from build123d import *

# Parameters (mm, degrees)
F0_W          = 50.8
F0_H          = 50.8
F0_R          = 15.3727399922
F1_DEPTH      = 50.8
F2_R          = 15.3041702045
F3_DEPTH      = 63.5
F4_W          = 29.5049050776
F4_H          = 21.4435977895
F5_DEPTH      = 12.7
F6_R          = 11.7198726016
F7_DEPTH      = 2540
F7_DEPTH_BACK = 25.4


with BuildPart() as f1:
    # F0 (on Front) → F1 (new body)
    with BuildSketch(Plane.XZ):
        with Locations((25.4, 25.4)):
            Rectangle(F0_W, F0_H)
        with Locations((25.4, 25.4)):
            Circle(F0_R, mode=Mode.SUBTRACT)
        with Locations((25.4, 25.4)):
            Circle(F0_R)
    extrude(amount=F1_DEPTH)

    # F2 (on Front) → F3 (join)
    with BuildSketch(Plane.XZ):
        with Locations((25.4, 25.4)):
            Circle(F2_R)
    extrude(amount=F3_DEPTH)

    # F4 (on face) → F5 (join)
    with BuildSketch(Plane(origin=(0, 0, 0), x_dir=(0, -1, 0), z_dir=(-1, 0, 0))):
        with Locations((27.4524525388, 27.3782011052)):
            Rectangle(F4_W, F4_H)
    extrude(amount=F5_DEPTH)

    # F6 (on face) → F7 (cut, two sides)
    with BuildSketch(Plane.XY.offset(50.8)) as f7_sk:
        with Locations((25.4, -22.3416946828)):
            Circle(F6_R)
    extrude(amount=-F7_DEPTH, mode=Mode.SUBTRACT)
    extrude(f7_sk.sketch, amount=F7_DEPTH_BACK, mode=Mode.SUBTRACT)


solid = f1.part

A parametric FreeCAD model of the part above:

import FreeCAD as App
import Part
import Sketcher
Q = App.Units.Quantity

doc = App.newDocument("Part")
body = doc.addObject("PartDesign::Body", "Body")

# Sketch on XZ plane
sketch1 = body.newObject("Sketcher::SketchObject", "Sketch")
sketch1.AttachmentSupport = (doc.getObject("XZ_Plane"), [""])
sketch1.MapMode = "FlatFace"
sketch1.addGeometry(Part.LineSegment(App.Vector(0, 51, 0), App.Vector(0, 0, 0)), False)
sketch1.addGeometry(Part.LineSegment(App.Vector(0, 0, 0), App.Vector(51, 0, 0)), False)
sketch1.addGeometry(Part.LineSegment(App.Vector(51, 0, 0), App.Vector(51, 51, 0)), False)
sketch1.addGeometry(Part.LineSegment(App.Vector(51, 51, 0), App.Vector(0, 51, 0)), False)
sketch1.addConstraint(Sketcher.Constraint("Coincident", 0, 2, 1, 1))
sketch1.addConstraint(Sketcher.Constraint("Coincident", 1, 2, 2, 1))
sketch1.addConstraint(Sketcher.Constraint("Coincident", 2, 2, 3, 1))
sketch1.addConstraint(Sketcher.Constraint("Coincident", 3, 2, 0, 1))
sketch1.addConstraint(Sketcher.Constraint("Vertical", 0))
sketch1.addConstraint(Sketcher.Constraint("Horizontal", 1))
sketch1.addConstraint(Sketcher.Constraint("Vertical", 2))
sketch1.addConstraint(Sketcher.Constraint("Horizontal", 3))
sketch1.addConstraint(Sketcher.Constraint("Coincident", 0, 2, -1, 1))
sketch1.addConstraint(Sketcher.Constraint("Equal", 3, 0))
sketch1.addConstraint(Sketcher.Constraint("DistanceX", 1, 1, 1, 2, Q("2 in")))
pad1 = body.newObject("PartDesign::Pad", "Pad")
pad1.Profile = sketch1
pad1.Length = Q("2 in")

# Sketch on XZ plane
sketch2 = body.newObject("Sketcher::SketchObject", "Sketch001")
sketch2.AttachmentSupport = (doc.getObject("XZ_Plane"), [""])
sketch2.MapMode = "FlatFace"
sketch2.addGeometry(Part.Circle(App.Vector(25, 25, 0), App.Vector(0, 0, 1), 15), False)
sketch2.addConstraint(Sketcher.Constraint("DistanceX", -1, 1, 0, 3, Q("1 in")))
sketch2.addConstraint(Sketcher.Constraint("DistanceY", -1, 1, 0, 3, Q("1 in")))
sketch2.addConstraint(Sketcher.Constraint("Diameter", 0, 30.60834))
pad2 = body.newObject("PartDesign::Pad", "Pad001")
pad2.Profile = sketch2
pad2.Length = Q("2.5 in")

# Sketch on YZ plane
sketch3 = body.newObject("Sketcher::SketchObject", "Sketch002")
sketch3.AttachmentSupport = (doc.getObject("YZ_Plane"), [""])
sketch3.MapMode = "FlatFace"
sketch3.addGeometry(Part.LineSegment(App.Vector(-13, 38, 0), App.Vector(-13, 17, 0)), False)
sketch3.addGeometry(Part.LineSegment(App.Vector(-13, 17, 0), App.Vector(-42, 17, 0)), False)
sketch3.addGeometry(Part.LineSegment(App.Vector(-42, 17, 0), App.Vector(-42, 38, 0)), False)
sketch3.addGeometry(Part.LineSegment(App.Vector(-42, 38, 0), App.Vector(-13, 38, 0)), False)
sketch3.addConstraint(Sketcher.Constraint("Coincident", 0, 2, 1, 1))
sketch3.addConstraint(Sketcher.Constraint("Coincident", 1, 2, 2, 1))
sketch3.addConstraint(Sketcher.Constraint("Coincident", 2, 2, 3, 1))
sketch3.addConstraint(Sketcher.Constraint("Coincident", 3, 2, 0, 1))
sketch3.addConstraint(Sketcher.Constraint("Vertical", 0))
sketch3.addConstraint(Sketcher.Constraint("Horizontal", 1))
sketch3.addConstraint(Sketcher.Constraint("Vertical", 2))
sketch3.addConstraint(Sketcher.Constraint("Horizontal", 3))
sketch3.addConstraint(Sketcher.Constraint("DistanceX", 0, 2, -1, 1, Q("0.5 in")))
sketch3.addConstraint(Sketcher.Constraint("DistanceY", -1, 1, 2, 2, Q("1.5 in")))
sketch3.addConstraint(Sketcher.Constraint("DistanceX", 1, 2, 1, 1, 29.504905))
sketch3.addConstraint(Sketcher.Constraint("DistanceY", 0, 2, 0, 1, 21.443598))
pad3 = body.newObject("PartDesign::Pad", "Pad002")
pad3.Profile = sketch3
pad3.Length = Q("0.5 in")
pad3.Reversed = True

# Sketch on XY plane
sketch4 = body.newObject("Sketcher::SketchObject", "Sketch003")
sketch4.AttachmentSupport = (doc.getObject("XY_Plane"), [""])
sketch4.MapMode = "FlatFace"
sketch4.AttachmentOffset = App.Placement(App.Vector(0, 0, 2 * 25.4), App.Rotation())
sketch4.addGeometry(Part.Circle(App.Vector(25, -22, 0), App.Vector(0, 0, 1), 12), False)
sketch4.addConstraint(Sketcher.Constraint("DistanceX", -1, 1, 0, 3, Q("1 in")))
sketch4.addConstraint(Sketcher.Constraint("Diameter", 0, 23.439745))
sketch4.addConstraint(Sketcher.Constraint("DistanceY", 0, 3, -1, 1, 22.341695))
pocket1 = body.newObject("PartDesign::Pocket", "Pocket")
pocket1.Profile = sketch4
pocket1.Type = "ThroughAll"
pocket1.Midplane = True

doc.recompute()
